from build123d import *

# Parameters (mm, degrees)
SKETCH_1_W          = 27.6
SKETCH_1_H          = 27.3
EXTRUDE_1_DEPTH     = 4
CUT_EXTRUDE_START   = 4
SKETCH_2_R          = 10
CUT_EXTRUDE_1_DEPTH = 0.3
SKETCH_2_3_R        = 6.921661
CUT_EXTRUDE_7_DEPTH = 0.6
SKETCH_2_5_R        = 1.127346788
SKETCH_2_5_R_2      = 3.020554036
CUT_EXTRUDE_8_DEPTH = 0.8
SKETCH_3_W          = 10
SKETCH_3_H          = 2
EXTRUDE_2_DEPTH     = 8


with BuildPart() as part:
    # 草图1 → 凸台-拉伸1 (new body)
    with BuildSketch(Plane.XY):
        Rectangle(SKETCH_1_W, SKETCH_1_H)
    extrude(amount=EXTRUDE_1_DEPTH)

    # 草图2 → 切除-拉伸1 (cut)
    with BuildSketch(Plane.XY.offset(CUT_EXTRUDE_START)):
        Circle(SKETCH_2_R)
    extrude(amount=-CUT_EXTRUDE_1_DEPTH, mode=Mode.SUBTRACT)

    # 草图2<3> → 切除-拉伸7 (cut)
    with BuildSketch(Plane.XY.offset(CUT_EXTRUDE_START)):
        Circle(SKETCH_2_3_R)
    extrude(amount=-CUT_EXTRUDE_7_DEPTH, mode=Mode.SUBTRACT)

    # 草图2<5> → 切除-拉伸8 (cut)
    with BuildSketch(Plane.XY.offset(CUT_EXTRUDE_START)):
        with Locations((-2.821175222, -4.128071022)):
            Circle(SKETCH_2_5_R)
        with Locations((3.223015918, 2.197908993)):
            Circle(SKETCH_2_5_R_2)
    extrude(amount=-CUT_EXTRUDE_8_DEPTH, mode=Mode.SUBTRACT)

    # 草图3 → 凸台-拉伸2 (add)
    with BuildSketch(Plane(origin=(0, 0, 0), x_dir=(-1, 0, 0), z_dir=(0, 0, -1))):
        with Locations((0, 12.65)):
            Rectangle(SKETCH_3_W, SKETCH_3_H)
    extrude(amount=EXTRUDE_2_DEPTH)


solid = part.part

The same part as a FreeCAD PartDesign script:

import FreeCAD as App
import Part
import Sketcher
from FreeCAD import Vector

doc = App.newDocument("Part")
body = doc.addObject("PartDesign::Body", "Body")

# Sketch on XY plane
sketch1 = doc.addObject("Sketcher::SketchObject", "Sketch")
body.addObject(sketch1)
sketch1.AttachmentSupport = (doc.XY_Plane, [""])
sketch1.MapMode = "FlatFace"
sketch1.addGeometry(Part.LineSegment(Vector(-14, 14, 0), Vector(-14, -14, 0)), False)
sketch1.addGeometry(Part.LineSegment(Vector(-14, -14, 0), Vector(14, -14, 0)), False)
sketch1.addGeometry(Part.LineSegment(Vector(14, -14, 0), Vector(14, 14, 0)), False)
sketch1.addGeometry(Part.LineSegment(Vector(14, 14, 0), Vector(-14, 14, 0)), False)
sketch1.addConstraint(Sketcher.Constraint("Coincident", 0, 2, 1, 1))
sketch1.addConstraint(Sketcher.Constraint("Coincident", 1, 2, 2, 1))
sketch1.addConstraint(Sketcher.Constraint("Coincident", 2, 2, 3, 1))
sketch1.addConstraint(Sketcher.Constraint("Coincident", 3, 2, 0, 1))
sketch1.addConstraint(Sketcher.Constraint("Vertical", 0))
sketch1.addConstraint(Sketcher.Constraint("Horizontal", 1))
sketch1.addConstraint(Sketcher.Constraint("Vertical", 2))
sketch1.addConstraint(Sketcher.Constraint("Horizontal", 3))
sketch1.addConstraint(Sketcher.Constraint("Symmetric", 0, 2, 2, 2, -1, 1))
sketch1.addConstraint(Sketcher.Constraint("DistanceX", 1, 1, 1, 2, 27.6))
sketch1.addConstraint(Sketcher.Constraint("DistanceY", 0, 2, 0, 1, 27.3))
pad1 = doc.addObject("PartDesign::Pad", "Pad")
body.addObject(pad1)
pad1.Profile = sketch1
pad1.Length = 4

# Sketch on XY plane
sketch2 = doc.addObject("Sketcher::SketchObject", "Sketch001")
body.addObject(sketch2)
sketch2.AttachmentSupport = (doc.XY_Plane, [""])
sketch2.MapMode = "FlatFace"
sketch2.AttachmentOffset = App.Placement(Vector(0, 0, 4), App.Rotation())
sketch2.addGeometry(Part.Circle(Vector(0, 0, 0), Vector(0, 0, 1), 10), False)
sketch2.addConstraint(Sketcher.Constraint("Coincident", 0, 3, -1, 1))
sketch2.addConstraint(Sketcher.Constraint("Diameter", 0, 20.0))
pocket1 = doc.addObject("PartDesign::Pocket", "Pocket")
body.addObject(pocket1)
pocket1.Profile = sketch2
pocket1.Length = 0.3

# Sketch on XY plane
sketch3 = doc.addObject("Sketcher::SketchObject", "Sketch002")
body.addObject(sketch3)
sketch3.AttachmentSupport = (doc.XY_Plane, [""])
sketch3.MapMode = "FlatFace"
sketch3.AttachmentOffset = App.Placement(Vector(0, 0, 4), App.Rotation())
sketch3.addGeometry(Part.Circle(Vector(0, 0, 0), Vector(0, 0, 1), 7), False)
sketch3.addConstraint(Sketcher.Constraint("Coincident", 0, 3, -1, 1))
sketch3.addConstraint(Sketcher.Constraint("Diameter", 0, 13.843322))
pocket2 = doc.addObject("PartDesign::Pocket", "Pocket001")
body.addObject(pocket2)
pocket2.Profile = sketch3
pocket2.Length = 0.6

# Sketch on XY plane
sketch4 = doc.addObject("Sketcher::SketchObject", "Sketch003")
body.addObject(sketch4)
sketch4.AttachmentSupport = (doc.XY_Plane, [""])
sketch4.MapMode = "FlatFace"
sketch4.AttachmentOffset = App.Placement(Vector(0, 0, 4), App.Rotation())
sketch4.addGeometry(Part.Circle(Vector(-2.8, -4.1, 0), Vector(0, 0, 1), 1.1), False)
sketch4.addGeometry(Part.Circle(Vector(3.2, 2.2, 0), Vector(0, 0, 1), 3), False)
sketch4.addConstraint(Sketcher.Constraint("Diameter", 1, 6.041108))
sketch4.addConstraint(Sketcher.Constraint("Diameter", 0, 2.254694))
sketch4.addConstraint(Sketcher.Constraint("DistanceY", 0, 3, -1, 1, 4.128071))
sketch4.addConstraint(Sketcher.Constraint("DistanceY", -1, 1, 1, 3, 2.197909))
sketch4.addConstraint(Sketcher.Constraint("DistanceX", 0, 3, 1, 3, 6.044191))
sketch4.addConstraint(Sketcher.Constraint("DistanceX", 0, 3, -1, 1, 2.821175))
pocket3 = doc.addObject("PartDesign::Pocket", "Pocket002")
body.addObject(pocket3)
pocket3.Profile = sketch4
pocket3.Length = 0.8

# Sketch on XY plane
sketch5 = doc.addObject("Sketcher::SketchObject", "Sketch004")
body.addObject(sketch5)
sketch5.AttachmentSupport = (doc.XY_Plane, [""])
sketch5.MapMode = "FlatFace"
sketch5.addGeometry(Part.LineSegment(Vector(5, 13.7, 0), Vector(5, 11.7, 0)), False)
sketch5.addGeometry(Part.LineSegment(Vector(5, 11.7, 0), Vector(-5, 11.7, 0)), False)
sketch5.addGeometry(Part.LineSegment(Vector(-5, 11.7, 0), Vector(-5, 13.7, 0)), False)
sketch5.addGeometry(Part.LineSegment(Vector(-5, 13.7, 0), Vector(5, 13.7, 0)), False)
sketch5.addConstraint(Sketcher.Constraint("Coincident", 0, 2, 1, 1))
sketch5.addConstraint(Sketcher.Constraint("Coincident", 1, 2, 2, 1))
sketch5.addConstraint(Sketcher.Constraint("Coincident", 2, 2, 3, 1))
sketch5.addConstraint(Sketcher.Constraint("Coincident", 3, 2, 0, 1))
sketch5.addConstraint(Sketcher.Constraint("Vertical", 0))
sketch5.addConstraint(Sketcher.Constraint("Horizontal", 1))
sketch5.addConstraint(Sketcher.Constraint("Vertical", 2))
sketch5.addConstraint(Sketcher.Constraint("Horizontal", 3))
sketch5.addConstraint(Sketcher.Constraint("DistanceX", 1, 2, 1, 1, 10.0))
sketch5.addConstraint(Sketcher.Constraint("DistanceY", 0, 2, 0, 1, 2.0))
sketch5.addConstraint(Sketcher.Constraint("DistanceX", -1, 1, 0, 2, 5.0))
sketch5.addConstraint(Sketcher.Constraint("DistanceY", -1, 1, 0, 2, 11.65))
pad2 = doc.addObject("PartDesign::Pad", "Pad001")
body.addObject(pad2)
pad2.Profile = sketch5
pad2.Length = 8
pad2.Reversed = True

doc.recompute()
